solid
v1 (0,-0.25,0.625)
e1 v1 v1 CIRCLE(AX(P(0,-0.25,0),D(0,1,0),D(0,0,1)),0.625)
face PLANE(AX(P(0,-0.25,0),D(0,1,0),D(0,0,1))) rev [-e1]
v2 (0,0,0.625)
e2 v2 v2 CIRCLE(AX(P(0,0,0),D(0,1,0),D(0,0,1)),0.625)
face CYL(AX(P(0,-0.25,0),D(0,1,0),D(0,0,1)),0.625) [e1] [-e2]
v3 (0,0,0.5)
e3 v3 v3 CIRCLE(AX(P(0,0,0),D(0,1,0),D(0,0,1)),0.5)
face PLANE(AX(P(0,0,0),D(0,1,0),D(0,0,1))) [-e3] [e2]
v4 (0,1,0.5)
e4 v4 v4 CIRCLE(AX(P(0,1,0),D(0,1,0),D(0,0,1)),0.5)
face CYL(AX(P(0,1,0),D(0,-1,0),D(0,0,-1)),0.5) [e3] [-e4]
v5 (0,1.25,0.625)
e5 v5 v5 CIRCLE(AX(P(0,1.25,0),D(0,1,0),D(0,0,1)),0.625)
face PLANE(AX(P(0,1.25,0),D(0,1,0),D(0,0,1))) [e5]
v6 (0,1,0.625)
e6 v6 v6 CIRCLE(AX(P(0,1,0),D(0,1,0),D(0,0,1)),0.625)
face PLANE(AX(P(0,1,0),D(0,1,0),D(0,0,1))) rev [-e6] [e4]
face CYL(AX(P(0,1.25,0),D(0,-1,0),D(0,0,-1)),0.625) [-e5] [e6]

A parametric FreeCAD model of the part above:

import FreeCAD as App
import Part
import Sketcher
from FreeCAD import Vector
Q = App.Units.Quantity

doc = App.newDocument("Part")
body = doc.addObject("PartDesign::Body", "Body")

# Sketch on XZ plane
sketch1 = body.newObject("Sketcher::SketchObject", "Sketch")
sketch1.AttachmentSupport = (doc.getObject("XZ_Plane"), [""])
sketch1.MapMode = "FlatFace"
sketch1.addGeometry(Part.Circle(Vector(0, 0, 0), Vector(0, 0, 1), 0.5), False)
sketch1.addConstraint([
    Sketcher.Constraint("Coincident", 0, 3, -1, 1),
    Sketcher.Constraint("Diameter", 0, Q("1 mm")),
])
pad1 = body.newObject("PartDesign::Pad", "Pad")
pad1.Profile = sketch1
pad1.Length = 1
pad1.Reversed = True

# Sketch on XZ plane
sketch2 = body.newObject("Sketcher::SketchObject", "Sketch001")
sketch2.AttachmentSupport = (doc.getObject("XZ_Plane"), [""])
sketch2.MapMode = "FlatFace"
sketch2.addGeometry(Part.Circle(Vector(0, 0, 0), Vector(0, 0, 1), 0.625), False)
sketch2.addConstraint([
    Sketcher.Constraint("Coincident", 0, 3, -1, 1),
    Sketcher.Constraint("Diameter", 0, Q("1.25 mm")),
])
pad2 = body.newObject("PartDesign::Pad", "Pad001")
pad2.Profile = sketch2
pad2.Length = 0.25

# Sketch on XZ plane
sketch3 = body.newObject("Sketcher::SketchObject", "Sketch002")
sketch3.AttachmentSupport = (doc.getObject("XZ_Plane"), [""])
sketch3.MapMode = "FlatFace"
sketch3.AttachmentOffset = App.Placement(Vector(0, 0, -1.25), App.Rotation())
sketch3.addGeometry(Part.Circle(Vector(0, 0, 0), Vector(0, 0, 1), 0.625), False)
sketch3.addConstraint([
    Sketcher.Constraint("Coincident", 0, 3, -1, 1),
    Sketcher.Constraint("Diameter", 0, Q("1.25 mm")),
])
pad3 = body.newObject("PartDesign::Pad", "Pad002")
pad3.Profile = sketch3
pad3.Length = 0.25

doc.recompute()
